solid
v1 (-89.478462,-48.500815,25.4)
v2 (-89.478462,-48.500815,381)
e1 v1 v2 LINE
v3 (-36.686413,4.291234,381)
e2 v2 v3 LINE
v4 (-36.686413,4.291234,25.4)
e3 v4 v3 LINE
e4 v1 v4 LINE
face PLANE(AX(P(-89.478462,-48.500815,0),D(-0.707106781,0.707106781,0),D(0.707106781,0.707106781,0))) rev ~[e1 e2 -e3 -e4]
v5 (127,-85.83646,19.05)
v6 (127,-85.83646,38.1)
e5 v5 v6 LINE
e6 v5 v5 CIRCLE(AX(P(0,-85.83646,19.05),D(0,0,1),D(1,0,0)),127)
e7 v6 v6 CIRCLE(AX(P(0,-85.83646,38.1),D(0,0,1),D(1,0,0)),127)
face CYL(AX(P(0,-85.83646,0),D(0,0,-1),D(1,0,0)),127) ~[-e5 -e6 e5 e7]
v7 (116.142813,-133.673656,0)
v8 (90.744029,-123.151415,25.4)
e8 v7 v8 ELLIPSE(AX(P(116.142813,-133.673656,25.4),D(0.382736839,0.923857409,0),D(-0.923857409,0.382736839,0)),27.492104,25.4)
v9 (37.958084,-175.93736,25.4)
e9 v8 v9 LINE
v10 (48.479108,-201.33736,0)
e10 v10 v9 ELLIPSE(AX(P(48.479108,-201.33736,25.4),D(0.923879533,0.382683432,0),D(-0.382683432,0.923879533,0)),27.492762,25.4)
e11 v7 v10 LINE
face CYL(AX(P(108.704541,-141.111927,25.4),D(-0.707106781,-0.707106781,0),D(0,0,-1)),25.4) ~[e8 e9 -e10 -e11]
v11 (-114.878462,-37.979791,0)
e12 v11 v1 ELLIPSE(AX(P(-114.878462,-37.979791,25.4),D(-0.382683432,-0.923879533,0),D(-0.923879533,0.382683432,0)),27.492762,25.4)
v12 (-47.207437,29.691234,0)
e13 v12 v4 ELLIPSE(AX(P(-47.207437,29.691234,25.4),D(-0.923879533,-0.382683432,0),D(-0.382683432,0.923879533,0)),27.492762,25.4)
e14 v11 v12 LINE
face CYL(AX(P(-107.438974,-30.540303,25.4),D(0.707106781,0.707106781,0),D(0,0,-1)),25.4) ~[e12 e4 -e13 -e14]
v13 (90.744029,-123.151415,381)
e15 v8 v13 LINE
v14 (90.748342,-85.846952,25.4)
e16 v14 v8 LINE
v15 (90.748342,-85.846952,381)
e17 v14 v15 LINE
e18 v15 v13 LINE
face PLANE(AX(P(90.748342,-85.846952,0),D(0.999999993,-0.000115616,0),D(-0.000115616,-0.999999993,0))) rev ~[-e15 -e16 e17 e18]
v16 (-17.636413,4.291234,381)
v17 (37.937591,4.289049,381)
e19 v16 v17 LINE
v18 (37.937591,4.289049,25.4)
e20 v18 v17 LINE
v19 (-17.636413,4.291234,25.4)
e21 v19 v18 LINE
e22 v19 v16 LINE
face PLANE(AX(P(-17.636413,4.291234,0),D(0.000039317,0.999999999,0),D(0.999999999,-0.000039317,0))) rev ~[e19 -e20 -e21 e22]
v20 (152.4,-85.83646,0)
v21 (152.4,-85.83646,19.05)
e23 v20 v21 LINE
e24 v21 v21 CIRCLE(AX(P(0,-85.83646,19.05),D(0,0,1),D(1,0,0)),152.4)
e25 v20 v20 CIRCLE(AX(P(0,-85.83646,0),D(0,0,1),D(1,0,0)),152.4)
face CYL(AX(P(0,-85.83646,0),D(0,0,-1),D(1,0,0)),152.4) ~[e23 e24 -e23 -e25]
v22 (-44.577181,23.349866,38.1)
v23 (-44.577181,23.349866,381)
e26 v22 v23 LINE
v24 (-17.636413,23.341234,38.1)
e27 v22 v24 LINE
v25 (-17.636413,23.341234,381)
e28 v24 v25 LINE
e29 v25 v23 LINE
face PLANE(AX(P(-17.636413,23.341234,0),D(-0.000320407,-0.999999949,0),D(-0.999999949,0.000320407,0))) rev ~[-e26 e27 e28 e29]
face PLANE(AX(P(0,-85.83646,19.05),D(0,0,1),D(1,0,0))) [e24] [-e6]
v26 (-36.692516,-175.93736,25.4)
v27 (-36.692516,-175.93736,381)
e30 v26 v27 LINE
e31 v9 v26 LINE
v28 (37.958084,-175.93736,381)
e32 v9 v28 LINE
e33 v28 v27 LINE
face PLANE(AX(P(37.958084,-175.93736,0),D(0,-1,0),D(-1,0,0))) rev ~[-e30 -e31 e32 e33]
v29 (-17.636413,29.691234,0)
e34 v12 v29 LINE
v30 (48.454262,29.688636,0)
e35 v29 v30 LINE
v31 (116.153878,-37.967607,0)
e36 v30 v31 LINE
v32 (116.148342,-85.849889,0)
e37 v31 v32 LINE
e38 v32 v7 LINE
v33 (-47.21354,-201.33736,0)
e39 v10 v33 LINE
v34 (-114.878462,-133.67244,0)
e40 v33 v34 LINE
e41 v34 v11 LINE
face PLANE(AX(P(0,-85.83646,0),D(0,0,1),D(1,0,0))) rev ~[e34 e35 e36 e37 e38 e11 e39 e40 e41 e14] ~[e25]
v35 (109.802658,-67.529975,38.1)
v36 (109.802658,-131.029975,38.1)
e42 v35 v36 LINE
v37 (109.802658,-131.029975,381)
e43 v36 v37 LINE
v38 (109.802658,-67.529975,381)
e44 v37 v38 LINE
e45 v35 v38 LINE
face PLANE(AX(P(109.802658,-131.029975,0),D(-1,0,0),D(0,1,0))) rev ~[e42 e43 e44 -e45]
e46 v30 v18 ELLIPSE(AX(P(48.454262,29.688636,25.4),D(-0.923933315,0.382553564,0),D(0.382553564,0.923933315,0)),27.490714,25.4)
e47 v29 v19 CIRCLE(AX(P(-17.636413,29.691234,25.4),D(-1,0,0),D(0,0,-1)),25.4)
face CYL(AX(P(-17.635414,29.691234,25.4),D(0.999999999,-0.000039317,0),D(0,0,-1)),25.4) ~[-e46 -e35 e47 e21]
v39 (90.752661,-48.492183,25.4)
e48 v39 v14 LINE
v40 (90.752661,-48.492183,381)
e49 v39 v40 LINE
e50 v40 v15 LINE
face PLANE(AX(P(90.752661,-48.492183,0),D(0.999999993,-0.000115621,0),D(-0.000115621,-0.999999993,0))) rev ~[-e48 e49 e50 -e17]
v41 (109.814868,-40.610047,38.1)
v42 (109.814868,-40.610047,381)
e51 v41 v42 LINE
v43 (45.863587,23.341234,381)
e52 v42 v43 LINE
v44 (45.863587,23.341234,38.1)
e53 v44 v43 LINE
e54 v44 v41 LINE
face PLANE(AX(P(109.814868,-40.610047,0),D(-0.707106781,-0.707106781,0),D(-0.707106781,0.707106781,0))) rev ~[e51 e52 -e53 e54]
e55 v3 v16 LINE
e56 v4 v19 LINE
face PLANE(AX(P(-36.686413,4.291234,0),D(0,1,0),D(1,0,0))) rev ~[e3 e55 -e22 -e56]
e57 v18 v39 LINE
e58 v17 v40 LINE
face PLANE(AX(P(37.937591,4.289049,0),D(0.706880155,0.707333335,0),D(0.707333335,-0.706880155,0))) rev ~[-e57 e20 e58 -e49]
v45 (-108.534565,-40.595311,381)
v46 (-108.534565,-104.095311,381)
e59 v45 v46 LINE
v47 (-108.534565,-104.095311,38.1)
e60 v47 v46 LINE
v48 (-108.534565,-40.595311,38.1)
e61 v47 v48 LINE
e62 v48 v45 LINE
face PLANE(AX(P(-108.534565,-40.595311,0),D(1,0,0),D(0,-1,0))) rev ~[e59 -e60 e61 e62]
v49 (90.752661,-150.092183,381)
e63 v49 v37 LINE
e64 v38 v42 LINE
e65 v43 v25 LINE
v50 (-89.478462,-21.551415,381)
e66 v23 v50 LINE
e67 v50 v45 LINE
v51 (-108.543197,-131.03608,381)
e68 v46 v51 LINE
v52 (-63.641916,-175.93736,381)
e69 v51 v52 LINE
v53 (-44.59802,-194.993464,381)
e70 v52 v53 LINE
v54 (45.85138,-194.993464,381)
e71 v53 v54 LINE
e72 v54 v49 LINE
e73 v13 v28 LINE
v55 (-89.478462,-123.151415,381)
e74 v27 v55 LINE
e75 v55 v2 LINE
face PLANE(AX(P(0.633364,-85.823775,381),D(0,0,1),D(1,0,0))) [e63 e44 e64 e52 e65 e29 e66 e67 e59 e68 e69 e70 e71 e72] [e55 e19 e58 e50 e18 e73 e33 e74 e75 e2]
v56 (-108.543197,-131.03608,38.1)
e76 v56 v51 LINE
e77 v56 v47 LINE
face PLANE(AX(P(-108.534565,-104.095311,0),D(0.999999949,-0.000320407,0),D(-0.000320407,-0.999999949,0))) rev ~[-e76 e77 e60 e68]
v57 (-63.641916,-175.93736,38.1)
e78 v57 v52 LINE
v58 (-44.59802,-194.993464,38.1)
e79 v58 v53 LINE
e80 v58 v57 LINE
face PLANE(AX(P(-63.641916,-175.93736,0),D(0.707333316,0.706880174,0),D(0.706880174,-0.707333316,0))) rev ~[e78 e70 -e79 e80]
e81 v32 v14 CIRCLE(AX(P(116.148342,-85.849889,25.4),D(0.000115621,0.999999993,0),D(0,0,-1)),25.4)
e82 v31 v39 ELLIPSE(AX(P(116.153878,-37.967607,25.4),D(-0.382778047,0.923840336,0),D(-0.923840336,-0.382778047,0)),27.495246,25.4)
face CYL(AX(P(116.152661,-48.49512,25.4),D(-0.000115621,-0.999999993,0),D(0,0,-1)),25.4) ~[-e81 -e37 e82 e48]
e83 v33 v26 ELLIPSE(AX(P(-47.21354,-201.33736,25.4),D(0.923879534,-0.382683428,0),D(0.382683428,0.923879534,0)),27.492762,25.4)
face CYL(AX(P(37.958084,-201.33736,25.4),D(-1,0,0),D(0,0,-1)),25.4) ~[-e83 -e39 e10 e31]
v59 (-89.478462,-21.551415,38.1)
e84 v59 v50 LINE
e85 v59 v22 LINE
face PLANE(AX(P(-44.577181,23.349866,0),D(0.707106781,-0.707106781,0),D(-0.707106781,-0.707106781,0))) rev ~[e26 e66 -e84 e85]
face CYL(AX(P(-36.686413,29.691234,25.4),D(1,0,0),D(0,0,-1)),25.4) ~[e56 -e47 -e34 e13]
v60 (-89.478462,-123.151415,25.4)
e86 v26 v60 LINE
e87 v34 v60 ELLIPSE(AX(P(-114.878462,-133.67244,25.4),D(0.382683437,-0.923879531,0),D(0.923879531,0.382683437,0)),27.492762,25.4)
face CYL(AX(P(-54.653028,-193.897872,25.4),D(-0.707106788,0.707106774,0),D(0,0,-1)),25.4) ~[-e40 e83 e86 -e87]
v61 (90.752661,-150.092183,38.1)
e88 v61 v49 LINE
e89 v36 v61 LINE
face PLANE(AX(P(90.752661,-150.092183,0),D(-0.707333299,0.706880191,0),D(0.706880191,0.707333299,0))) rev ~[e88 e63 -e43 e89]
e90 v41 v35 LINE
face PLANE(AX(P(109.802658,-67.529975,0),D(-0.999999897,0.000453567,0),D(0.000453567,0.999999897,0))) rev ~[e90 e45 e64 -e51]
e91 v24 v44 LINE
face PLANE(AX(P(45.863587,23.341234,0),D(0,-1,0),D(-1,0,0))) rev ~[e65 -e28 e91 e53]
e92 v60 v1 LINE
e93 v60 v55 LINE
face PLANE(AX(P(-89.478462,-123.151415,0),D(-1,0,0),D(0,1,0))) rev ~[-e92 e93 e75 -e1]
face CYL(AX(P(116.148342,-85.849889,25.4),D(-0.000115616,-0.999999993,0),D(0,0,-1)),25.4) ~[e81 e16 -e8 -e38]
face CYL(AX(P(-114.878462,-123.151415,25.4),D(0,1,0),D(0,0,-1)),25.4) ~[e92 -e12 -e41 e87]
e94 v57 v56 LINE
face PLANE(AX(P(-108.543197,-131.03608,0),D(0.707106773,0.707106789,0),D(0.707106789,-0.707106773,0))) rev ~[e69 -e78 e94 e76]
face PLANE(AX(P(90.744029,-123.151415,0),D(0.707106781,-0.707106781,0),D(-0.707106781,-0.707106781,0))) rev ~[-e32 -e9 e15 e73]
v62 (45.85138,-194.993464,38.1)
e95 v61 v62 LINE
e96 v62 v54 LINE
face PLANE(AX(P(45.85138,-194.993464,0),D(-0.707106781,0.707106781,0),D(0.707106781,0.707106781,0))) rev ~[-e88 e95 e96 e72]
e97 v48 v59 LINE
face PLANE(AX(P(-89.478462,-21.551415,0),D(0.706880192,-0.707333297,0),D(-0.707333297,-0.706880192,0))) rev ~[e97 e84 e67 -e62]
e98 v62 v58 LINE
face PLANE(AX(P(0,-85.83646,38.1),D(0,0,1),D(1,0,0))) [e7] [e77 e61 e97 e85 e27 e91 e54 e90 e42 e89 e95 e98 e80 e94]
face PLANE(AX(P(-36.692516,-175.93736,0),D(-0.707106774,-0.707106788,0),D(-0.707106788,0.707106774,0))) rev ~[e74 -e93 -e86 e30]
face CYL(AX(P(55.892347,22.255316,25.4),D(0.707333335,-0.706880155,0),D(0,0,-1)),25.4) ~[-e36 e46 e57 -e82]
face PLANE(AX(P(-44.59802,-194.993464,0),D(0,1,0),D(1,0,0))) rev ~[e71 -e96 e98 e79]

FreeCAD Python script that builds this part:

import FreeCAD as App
import Part
import Sketcher

V = App.Vector
Q = App.Units.Quantity


def edges_at(feature, points):
    """Names of the edges that pass closest to the given points."""
    edges = feature.Shape.Edges
    near = lambda p: min(range(len(edges)), key=lambda i: edges[i].distToShape(Part.Vertex(*p))[0])
    return sorted({f"Edge{near(p) + 1}" for p in points})


def add_polygon(sketch, points):
    """Adds a closed chain of lines whose ends are joined by coincident constraints."""
    first, n = sketch.GeometryCount, len(points)
    for a, b in zip(points, points[1:] + points[:1]):
        sketch.addGeometry(Part.LineSegment(App.Vector(*a, 0), App.Vector(*b, 0)), False)
    for i in range(n):
        sketch.addConstraint(Sketcher.Constraint("Coincident", first + i, 2, first + (i + 1) % n, 1))

doc = App.newDocument("Part")
body = doc.addObject("PartDesign::Body", "Body")

sketch1 = doc.addObject("Sketcher::SketchObject", "Sketch")
body.addObject(sketch1)
sketch1.AttachmentSupport = (doc.XY_Plane, [""])
sketch1.MapMode = "FlatFace"
add_polygon(sketch1, [(46, 23), (-18, 23), (-45, 23), (-89, -22), (-109, -41), (-109, -104), (-109, -131), (-64, -176), (-45, -195), (46, -195), (91, -150), (110, -131), (110, -68), (110, -41)])
add_polygon(sketch1, [(-89, -123), (-89, -49), (-37, 4), (-18, 4), (38, 4), (91, -48), (91, -86), (91, -123), (38, -176), (-37, -176)])
sketch1.addConstraint([
    Sketcher.Constraint("Horizontal", 0),
    Sketcher.Constraint("Vertical", 4),
    Sketcher.Constraint("Horizontal", 8),
    Sketcher.Constraint("Vertical", 11),
    Sketcher.Constraint("Vertical", 14),
    Sketcher.Constraint("Horizontal", 16),
    Sketcher.Constraint("Horizontal", 22),
    Sketcher.Constraint("Perpendicular", 1, 5),
    Sketcher.Constraint("Perpendicular", 2, 6),
    Sketcher.Constraint("Perpendicular", 3, 7),
    Sketcher.Constraint("Perpendicular", 6, 9),
    Sketcher.Constraint("Perpendicular", 9, 13),
    Sketcher.Constraint("Perpendicular", 13, 15),
    Sketcher.Constraint("Perpendicular", 10, 18),
    Sketcher.Constraint("Parallel", 19, 20),
    Sketcher.Constraint("Parallel", 15, 21),
    Sketcher.Constraint("Perpendicular", 21, 23),
    Sketcher.Constraint("Horizontal", 6, 2, 21, 2),
    Sketcher.Constraint("Horizontal", 20, 2, 23, 2),
    Sketcher.Constraint("Vertical", 2, 2, 14, 2),
    Sketcher.Constraint("Vertical", 0, 2, 16, 2),
    Sketcher.Constraint("Vertical", 9, 2, 18, 2),
    Sketcher.Constraint("Equal", 0, 4),
    Sketcher.Constraint("Equal", 4, 11),
    Sketcher.Constraint("Equal", 22, 14),
    Sketcher.Constraint("Equal", 1, 3),
    Sketcher.Constraint("Equal", 3, 5),
    Sketcher.Constraint("Equal", 2, 6),
    Sketcher.Constraint("Equal", 5, 7),
    Sketcher.Constraint("Equal", 6, 9),
    Sketcher.Constraint("Equal", 21, 23),
    Sketcher.Constraint("DistanceX", 0, 2, 0, 1, Q("2.5 in")),
    Sketcher.Constraint("Distance", 2, Q("2.5 in")),
    Sketcher.Constraint("DistanceX", 16, 1, 16, 2, Q("0.75 in")),
    Sketcher.Constraint("DistanceX", 8, 1, 8, 2, Q("3.561 in")),
    Sketcher.Constraint("DistanceX", 22, 2, 22, 1, Q("2.939 in")),
    Sketcher.Constraint("DistanceX", 9, 2, 10, 2, Q("0.7499999 in")),
    Sketcher.Constraint("DistanceY", 15, 2, 0, 2, Q("0.75 in")),
    Sketcher.Constraint("Distance", 10, Q("1.061 in")),
    Sketcher.Constraint("Distance", 21, Q("2.939 in")),
    Sketcher.Constraint("DistanceY", 14, 2, 2, 2, Q("1.061 in")),
    Sketcher.Constraint("DistanceX", 6, 2, 22, 2, Q("1.061 in")),
    Sketcher.Constraint("Distance", 12, 26.919931),
    Sketcher.Constraint("Distance", 19, 37.354769),
    Sketcher.Constraint("DistanceX", 1, 2, -1, 1, 44.577181),
    Sketcher.Constraint("DistanceY", 3, 2, -1, 1, 40.595311),
    Sketcher.Constraint("DistanceX", -1, 1, 17, 2, 37.937591),
    Sketcher.Constraint("DistanceY", -1, 1, 17, 2, 4.289049),
])
pad1 = doc.addObject("PartDesign::Pad", "Pad")
body.addObject(pad1)
pad1.Profile = sketch1
pad1.Length = Q("15 in")

sketch2 = doc.addObject("Sketcher::SketchObject", "Sketch001")
body.addObject(sketch2)
sketch2.AttachmentSupport = (doc.XY_Plane, [""])
sketch2.MapMode = "FlatFace"
sketch2.addGeometry(Part.Circle(V(0, -86, 0), V(0, 0, 1), 127), False)
add_polygon(sketch2, [(-45, 23), (-18, 23), (46, 23), (110, -41), (110, -68), (110, -131), (91, -150), (46, -195), (-45, -195), (-64, -176), (-109, -131), (-109, -104), (-109, -41), (-89, -22)])
sketch2.addConstraint([
    Sketcher.Constraint("Horizontal", 2),
    Sketcher.Constraint("Vertical", 5),
    Sketcher.Constraint("Horizontal", 8),
    Sketcher.Constraint("Vertical", 12),
    Sketcher.Constraint("PointOnObject", 0, 3, -2),
    Sketcher.Constraint("Perpendicular", 3, 7),
    Sketcher.Constraint("Perpendicular", 7, 10),
    Sketcher.Constraint("Perpendicular", 1, 11),
    Sketcher.Constraint("Perpendicular", 9, 13),
    Sketcher.Constraint("Perpendicular", 10, 14),
    Sketcher.Constraint("Equal", 2, 5),
    Sketcher.Constraint("Equal", 5, 12),
    Sketcher.Constraint("Equal", 1, 9),
    Sketcher.Constraint("Equal", 7, 10),
    Sketcher.Constraint("Equal", 9, 11),
    Sketcher.Constraint("Equal", 11, 13),
    Sketcher.Constraint("Equal", 10, 14),
    Sketcher.Constraint("Diameter", 0, Q("10 in")),
    Sketcher.Constraint("DistanceX", 2, 1, 2, 2, Q("2.5 in")),
    Sketcher.Constraint("Angle", 3, Q("-45 deg")),
    Sketcher.Constraint("Distance", 7, Q("2.5 in")),
    Sketcher.Constraint("DistanceX", 8, 2, 8, 1, Q("3.561 in")),
    Sketcher.Constraint("DistanceX", 6, 2, 5, 2, Q("0.7499999 in")),
    Sketcher.Constraint("Distance", 6, Q("1.061 in")),
    Sketcher.Constraint("DistanceY", 9, 2, 0, 3, 90.1009),
    Sketcher.Constraint("Distance", 1, 26.940769),
    Sketcher.Constraint("Distance", 3, 90.440769),
    Sketcher.Constraint("Distance", 4, 26.919931),
    Sketcher.Constraint("DistanceY", 0, 3, -1, 1, 85.83646),
    Sketcher.Constraint("DistanceX", -1, 1, 3, 2, 109.814868),
    Sketcher.Constraint("DistanceX", -1, 1, 6, 2, 90.752661),
])
pad2 = doc.addObject("PartDesign::Pad", "Pad001")
body.addObject(pad2)
pad2.Profile = sketch2
pad2.Length = Q("1.5 in")

sketch3 = doc.addObject("Sketcher::SketchObject", "Sketch002")
body.addObject(sketch3)
sketch3.AttachmentSupport = (doc.XY_Plane, [""])
sketch3.MapMode = "FlatFace"
sketch3.addGeometry([
    Part.Circle(V(0, -86, 0), V(0, 0, 1), 152),
    Part.Circle(V(0, -86, 0), V(0, 0, 1), 127),
], False)
sketch3.addConstraint([
    Sketcher.Constraint("Coincident", 1, 3, 0, 3),
    Sketcher.Constraint("PointOnObject", 0, 3, -2),
    Sketcher.Constraint("Diameter", 0, Q("12 in")),
    Sketcher.Constraint("Diameter", 1, Q("10 in")),
    Sketcher.Constraint("DistanceY", 0, 3, -1, 1, 85.83646),
])
pad3 = doc.addObject("PartDesign::Pad", "Pad002")
body.addObject(pad3)
pad3.Profile = sketch3
pad3.Length = Q("0.75 in")
doc.recompute()

fillet = doc.addObject("PartDesign::Fillet", "Fillet")
body.addObject(fillet)
fillet.Base = (pad3, edges_at(pad3, [
    (-89.478, -85.826, 0),
    (-63.085, -149.544, 0),
    (-63.082, -22.105, 0),
    (-27.161, 4.291, 0),
    (10.151, 4.29, 0),
    (0.633, -175.937, 0),
    (64.351, -149.544, 0),
    (90.751, -67.17, 0),
    (64.345, -22.102, 0),
]))
fillet.Radius = Q("1 in")

doc.recompute()
